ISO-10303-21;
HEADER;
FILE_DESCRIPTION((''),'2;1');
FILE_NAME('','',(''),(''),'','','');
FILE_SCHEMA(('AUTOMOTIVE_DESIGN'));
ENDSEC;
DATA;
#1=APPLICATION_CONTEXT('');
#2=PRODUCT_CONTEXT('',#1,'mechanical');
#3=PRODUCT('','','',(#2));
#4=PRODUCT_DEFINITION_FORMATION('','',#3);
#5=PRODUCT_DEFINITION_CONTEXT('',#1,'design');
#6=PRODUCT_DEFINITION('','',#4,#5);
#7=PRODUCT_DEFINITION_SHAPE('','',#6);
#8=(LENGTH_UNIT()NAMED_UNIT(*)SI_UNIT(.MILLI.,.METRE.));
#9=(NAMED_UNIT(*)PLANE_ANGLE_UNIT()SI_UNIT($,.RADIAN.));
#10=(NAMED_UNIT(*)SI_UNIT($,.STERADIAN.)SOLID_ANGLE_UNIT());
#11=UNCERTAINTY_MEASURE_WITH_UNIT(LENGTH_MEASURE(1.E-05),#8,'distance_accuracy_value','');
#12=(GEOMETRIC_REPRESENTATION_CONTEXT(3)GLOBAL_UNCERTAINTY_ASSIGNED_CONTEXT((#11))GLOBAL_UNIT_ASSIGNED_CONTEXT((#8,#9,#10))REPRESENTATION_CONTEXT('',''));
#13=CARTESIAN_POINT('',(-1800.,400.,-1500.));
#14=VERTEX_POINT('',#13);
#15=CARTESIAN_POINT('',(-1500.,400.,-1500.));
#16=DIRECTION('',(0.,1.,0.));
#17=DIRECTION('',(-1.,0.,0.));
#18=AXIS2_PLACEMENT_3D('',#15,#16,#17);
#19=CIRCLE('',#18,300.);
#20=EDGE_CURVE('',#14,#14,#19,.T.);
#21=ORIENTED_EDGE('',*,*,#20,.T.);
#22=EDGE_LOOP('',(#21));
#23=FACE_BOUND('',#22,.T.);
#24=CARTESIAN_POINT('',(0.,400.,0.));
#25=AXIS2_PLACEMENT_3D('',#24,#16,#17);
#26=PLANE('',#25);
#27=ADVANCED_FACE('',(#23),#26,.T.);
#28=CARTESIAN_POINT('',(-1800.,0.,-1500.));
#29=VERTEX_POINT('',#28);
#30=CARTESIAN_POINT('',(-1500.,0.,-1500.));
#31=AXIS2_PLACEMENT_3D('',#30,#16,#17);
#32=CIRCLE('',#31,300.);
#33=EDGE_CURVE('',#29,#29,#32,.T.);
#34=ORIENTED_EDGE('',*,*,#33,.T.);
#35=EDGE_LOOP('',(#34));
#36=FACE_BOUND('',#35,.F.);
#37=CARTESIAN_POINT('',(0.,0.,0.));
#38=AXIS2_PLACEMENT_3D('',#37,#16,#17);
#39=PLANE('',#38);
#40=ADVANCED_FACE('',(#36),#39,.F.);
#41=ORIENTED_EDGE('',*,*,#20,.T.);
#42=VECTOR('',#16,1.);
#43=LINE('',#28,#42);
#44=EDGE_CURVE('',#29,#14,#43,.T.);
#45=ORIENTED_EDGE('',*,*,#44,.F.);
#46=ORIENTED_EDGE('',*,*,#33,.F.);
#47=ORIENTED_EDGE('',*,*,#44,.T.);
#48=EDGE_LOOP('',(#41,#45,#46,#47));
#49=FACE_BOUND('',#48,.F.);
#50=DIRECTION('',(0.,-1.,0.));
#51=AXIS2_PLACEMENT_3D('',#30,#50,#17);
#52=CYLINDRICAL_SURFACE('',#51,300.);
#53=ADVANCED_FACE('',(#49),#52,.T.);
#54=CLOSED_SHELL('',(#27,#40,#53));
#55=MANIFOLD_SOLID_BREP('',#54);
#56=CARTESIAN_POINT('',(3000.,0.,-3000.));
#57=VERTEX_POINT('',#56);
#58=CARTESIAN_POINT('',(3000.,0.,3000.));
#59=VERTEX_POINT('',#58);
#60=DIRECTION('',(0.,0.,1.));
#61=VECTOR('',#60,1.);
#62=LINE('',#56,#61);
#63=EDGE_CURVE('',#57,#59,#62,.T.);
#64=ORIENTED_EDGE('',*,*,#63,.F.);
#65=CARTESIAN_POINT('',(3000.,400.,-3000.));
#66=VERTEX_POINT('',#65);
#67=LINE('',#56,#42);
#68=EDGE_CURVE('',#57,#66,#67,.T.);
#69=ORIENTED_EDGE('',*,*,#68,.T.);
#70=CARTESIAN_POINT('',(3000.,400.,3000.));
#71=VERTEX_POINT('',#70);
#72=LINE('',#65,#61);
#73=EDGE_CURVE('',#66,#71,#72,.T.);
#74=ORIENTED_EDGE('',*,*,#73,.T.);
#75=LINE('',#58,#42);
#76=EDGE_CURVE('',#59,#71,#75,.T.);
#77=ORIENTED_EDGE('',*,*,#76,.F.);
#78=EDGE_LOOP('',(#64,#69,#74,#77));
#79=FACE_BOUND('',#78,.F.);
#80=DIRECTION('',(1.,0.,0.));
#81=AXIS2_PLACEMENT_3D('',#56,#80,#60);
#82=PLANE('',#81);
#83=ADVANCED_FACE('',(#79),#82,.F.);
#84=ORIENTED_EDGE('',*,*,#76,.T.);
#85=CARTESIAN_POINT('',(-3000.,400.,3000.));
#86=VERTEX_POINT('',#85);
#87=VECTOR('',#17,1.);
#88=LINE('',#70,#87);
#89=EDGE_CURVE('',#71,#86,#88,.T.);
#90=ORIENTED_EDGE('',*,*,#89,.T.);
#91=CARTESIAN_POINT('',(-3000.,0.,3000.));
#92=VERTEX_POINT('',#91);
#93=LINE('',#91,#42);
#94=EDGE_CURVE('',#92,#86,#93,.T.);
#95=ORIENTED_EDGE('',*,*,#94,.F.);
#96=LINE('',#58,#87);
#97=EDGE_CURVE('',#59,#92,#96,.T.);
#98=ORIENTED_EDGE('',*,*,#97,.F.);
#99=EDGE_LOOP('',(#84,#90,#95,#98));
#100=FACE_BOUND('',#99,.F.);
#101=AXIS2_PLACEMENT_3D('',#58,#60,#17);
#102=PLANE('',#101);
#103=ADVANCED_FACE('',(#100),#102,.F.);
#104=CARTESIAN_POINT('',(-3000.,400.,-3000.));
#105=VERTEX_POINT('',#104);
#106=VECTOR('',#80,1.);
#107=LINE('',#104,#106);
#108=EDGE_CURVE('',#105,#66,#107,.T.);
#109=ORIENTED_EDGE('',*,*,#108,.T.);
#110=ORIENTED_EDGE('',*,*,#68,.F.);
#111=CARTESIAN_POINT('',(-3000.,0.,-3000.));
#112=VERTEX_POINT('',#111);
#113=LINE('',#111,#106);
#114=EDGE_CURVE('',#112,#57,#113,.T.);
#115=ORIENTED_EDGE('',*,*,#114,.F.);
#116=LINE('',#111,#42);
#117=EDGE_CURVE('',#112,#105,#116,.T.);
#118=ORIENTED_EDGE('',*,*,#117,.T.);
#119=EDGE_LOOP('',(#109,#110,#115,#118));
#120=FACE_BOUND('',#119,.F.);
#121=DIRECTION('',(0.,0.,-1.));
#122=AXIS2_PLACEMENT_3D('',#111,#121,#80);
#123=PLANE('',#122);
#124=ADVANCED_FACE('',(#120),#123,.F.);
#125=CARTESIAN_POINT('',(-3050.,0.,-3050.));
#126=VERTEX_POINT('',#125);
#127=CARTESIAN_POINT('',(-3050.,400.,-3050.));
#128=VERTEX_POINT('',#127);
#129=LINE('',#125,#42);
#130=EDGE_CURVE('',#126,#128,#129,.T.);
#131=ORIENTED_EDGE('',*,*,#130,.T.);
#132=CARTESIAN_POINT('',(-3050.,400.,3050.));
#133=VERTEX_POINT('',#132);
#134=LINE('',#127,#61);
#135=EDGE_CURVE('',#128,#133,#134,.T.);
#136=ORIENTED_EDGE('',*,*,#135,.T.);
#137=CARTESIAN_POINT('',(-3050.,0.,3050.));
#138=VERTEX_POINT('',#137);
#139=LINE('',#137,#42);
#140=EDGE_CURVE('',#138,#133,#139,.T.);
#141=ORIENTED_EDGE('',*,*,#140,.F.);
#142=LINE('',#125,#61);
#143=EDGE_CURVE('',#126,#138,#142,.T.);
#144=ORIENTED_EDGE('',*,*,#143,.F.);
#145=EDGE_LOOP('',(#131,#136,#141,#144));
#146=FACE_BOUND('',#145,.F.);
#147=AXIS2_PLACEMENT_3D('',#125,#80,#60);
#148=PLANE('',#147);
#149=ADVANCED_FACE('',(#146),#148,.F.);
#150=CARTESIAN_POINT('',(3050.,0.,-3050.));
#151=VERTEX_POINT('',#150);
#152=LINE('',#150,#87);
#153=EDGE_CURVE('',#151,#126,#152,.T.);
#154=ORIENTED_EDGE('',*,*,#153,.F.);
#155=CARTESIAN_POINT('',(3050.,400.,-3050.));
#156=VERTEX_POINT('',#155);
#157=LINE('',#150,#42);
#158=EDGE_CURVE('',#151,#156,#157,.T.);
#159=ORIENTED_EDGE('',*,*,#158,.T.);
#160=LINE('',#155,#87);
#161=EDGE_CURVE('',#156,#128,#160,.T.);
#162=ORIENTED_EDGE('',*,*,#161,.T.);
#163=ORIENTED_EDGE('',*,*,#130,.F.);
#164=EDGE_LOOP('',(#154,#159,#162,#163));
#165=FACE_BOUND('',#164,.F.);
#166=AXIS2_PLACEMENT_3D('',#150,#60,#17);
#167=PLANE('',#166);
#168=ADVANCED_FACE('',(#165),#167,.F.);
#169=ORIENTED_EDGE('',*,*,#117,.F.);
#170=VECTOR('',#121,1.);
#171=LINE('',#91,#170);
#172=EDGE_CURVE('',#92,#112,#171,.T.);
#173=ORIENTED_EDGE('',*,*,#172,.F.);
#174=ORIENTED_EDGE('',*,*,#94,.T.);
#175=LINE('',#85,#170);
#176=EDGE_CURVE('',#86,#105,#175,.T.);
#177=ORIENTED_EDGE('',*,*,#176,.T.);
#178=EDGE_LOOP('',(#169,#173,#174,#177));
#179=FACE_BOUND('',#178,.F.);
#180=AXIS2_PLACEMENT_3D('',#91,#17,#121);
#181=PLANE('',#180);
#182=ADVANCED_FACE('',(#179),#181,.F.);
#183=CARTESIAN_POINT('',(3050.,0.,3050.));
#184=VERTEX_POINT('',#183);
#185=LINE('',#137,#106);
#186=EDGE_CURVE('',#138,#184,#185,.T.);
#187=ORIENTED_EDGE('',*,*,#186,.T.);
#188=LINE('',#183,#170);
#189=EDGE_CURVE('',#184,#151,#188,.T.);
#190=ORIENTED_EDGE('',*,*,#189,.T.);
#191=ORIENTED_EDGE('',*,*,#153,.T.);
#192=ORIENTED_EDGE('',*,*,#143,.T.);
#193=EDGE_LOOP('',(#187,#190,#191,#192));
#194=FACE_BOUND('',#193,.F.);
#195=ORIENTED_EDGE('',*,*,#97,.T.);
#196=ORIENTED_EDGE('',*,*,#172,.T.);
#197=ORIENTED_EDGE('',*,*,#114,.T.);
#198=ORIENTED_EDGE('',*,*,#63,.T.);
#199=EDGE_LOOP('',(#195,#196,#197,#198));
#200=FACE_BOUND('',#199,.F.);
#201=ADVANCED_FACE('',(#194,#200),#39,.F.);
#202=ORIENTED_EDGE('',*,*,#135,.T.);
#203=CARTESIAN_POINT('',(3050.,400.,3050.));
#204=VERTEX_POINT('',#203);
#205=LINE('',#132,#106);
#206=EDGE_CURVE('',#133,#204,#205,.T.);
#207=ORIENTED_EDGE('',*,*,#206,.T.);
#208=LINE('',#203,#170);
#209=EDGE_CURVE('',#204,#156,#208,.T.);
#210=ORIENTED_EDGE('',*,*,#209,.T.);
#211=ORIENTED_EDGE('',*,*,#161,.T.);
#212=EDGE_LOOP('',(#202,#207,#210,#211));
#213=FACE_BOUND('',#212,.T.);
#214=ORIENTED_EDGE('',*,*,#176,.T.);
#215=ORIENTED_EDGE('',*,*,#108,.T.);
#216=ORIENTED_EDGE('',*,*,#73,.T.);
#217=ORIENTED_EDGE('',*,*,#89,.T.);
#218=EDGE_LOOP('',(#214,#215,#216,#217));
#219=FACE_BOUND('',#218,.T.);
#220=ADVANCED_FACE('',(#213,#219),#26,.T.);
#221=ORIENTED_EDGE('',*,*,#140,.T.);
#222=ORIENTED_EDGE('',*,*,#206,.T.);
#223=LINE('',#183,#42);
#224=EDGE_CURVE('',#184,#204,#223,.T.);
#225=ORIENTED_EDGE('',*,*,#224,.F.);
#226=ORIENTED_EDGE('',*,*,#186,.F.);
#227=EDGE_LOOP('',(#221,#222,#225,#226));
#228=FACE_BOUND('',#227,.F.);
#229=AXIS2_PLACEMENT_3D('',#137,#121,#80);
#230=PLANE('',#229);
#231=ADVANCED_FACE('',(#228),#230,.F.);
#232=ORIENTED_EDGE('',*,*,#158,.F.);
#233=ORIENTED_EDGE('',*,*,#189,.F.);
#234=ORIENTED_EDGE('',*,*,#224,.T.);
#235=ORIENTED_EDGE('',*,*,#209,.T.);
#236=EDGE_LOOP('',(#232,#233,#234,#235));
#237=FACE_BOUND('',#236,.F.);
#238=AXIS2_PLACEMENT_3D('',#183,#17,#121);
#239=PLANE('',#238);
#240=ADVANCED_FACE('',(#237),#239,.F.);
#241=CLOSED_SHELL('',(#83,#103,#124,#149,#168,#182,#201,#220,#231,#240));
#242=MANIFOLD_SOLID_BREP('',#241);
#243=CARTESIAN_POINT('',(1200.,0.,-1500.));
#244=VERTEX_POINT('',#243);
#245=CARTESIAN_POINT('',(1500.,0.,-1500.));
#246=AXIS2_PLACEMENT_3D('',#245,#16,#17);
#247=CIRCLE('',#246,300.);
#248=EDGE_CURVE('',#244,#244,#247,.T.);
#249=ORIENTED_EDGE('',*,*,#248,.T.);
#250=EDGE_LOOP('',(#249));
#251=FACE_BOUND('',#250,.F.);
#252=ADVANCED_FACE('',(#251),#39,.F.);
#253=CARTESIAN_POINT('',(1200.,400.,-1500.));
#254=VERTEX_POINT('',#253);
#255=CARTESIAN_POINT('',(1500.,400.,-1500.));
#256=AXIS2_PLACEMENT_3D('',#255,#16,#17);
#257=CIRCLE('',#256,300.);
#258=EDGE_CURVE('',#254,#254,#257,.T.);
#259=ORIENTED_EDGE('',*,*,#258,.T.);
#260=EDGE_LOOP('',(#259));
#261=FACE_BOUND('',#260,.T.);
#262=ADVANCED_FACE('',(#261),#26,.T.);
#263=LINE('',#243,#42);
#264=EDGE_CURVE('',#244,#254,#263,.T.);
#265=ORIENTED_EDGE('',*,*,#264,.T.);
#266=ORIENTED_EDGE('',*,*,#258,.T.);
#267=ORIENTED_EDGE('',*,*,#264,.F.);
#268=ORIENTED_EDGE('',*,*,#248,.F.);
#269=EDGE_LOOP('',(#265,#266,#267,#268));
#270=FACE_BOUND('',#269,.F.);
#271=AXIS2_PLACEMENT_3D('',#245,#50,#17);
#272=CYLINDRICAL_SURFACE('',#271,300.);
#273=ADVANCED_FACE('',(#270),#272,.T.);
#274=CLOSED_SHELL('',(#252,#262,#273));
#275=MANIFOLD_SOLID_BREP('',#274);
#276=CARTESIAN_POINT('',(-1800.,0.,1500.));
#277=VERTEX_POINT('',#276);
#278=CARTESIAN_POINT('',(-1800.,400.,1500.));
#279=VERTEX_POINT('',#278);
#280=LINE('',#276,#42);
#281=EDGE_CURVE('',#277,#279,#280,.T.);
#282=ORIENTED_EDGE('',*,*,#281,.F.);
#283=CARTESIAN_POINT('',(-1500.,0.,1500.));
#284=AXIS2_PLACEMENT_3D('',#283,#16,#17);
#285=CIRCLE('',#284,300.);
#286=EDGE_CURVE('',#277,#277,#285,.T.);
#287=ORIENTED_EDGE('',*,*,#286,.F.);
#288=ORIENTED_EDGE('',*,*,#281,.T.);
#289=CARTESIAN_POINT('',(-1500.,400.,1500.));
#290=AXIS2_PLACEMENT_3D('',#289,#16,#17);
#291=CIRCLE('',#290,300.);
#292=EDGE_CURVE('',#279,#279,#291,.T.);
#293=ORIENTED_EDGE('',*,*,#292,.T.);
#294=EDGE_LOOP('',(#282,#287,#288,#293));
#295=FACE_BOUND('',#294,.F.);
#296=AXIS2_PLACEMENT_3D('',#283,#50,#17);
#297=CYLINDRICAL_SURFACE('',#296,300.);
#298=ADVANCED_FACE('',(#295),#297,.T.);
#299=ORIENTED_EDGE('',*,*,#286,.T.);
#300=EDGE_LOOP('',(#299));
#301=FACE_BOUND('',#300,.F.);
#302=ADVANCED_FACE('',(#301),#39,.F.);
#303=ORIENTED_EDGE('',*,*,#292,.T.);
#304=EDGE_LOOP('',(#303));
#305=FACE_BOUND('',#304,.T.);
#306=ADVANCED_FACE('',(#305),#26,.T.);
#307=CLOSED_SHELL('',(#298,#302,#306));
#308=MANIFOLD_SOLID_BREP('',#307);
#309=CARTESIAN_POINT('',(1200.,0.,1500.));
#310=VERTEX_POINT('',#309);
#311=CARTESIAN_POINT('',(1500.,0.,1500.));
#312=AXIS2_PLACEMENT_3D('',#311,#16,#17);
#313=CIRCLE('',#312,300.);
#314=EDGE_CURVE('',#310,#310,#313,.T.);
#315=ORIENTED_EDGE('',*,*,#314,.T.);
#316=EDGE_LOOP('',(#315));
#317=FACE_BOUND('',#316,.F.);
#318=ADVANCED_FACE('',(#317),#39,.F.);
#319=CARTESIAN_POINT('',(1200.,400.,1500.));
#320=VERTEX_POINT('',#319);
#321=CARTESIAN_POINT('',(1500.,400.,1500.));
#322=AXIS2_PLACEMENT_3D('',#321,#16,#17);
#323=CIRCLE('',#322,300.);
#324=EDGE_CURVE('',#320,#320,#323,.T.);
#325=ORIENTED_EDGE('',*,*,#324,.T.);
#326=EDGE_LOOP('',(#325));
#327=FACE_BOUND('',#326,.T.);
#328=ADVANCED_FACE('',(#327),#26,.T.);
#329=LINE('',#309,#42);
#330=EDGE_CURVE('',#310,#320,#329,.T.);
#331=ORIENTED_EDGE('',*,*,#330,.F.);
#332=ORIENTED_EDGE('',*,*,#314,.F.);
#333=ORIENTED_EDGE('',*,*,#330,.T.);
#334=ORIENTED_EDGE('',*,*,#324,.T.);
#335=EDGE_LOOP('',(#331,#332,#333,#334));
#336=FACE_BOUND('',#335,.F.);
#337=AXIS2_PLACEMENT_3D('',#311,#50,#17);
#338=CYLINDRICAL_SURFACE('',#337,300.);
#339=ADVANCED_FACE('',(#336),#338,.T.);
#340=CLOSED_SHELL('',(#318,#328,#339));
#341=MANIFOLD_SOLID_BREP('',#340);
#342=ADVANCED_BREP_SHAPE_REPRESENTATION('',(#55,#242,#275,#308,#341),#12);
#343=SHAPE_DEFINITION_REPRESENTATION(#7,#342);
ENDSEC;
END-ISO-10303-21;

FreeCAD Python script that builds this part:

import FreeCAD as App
import Part
import Sketcher

V = App.Vector
Q = App.Units.Quantity


def add_polygon(sketch, points):
    """Adds a closed chain of lines whose ends are joined by coincident constraints."""
    first, n = sketch.GeometryCount, len(points)
    for a, b in zip(points, points[1:] + points[:1]):
        sketch.addGeometry(Part.LineSegment(App.Vector(*a, 0), App.Vector(*b, 0)), False)
    for i in range(n):
        sketch.addConstraint(Sketcher.Constraint("Coincident", first + i, 2, first + (i + 1) % n, 1))

doc = App.newDocument("Part")
params = doc.addObject("Spreadsheet::Sheet", "Params")
for row, (alias, value) in enumerate([
    ("sketch1_diameter", "600 mm"),
    ("sketch1_width", "6000 mm"),
    ("pad1_length", "400 mm"),
], start=1):
    params.set(f"A{row}", alias)
    params.set(f"B{row}", "=" + value)
    params.setAlias(f"B{row}", alias)

body = doc.addObject("PartDesign::Body", "Body")
body.AllowCompound = True

sketch1 = doc.addObject("Sketcher::SketchObject", "Sketch")
body.addObject(sketch1)
sketch1.AttachmentSupport = (doc.XZ_Plane, [""])
sketch1.MapMode = "FlatFace"
add_polygon(sketch1, [(3050, 3050), (3050, -3050), (-3050, -3050), (-3050, 3050)])
add_polygon(sketch1, [(-3000, 3000), (-3000, -3000), (3000, -3000), (3000, 3000)])
sketch1.addGeometry(Part.Circle(V(-1500, -1500, 0), V(0, 0, 1), 300), False)
sketch1.addGeometry(Part.Circle(V(1500, -1500, 0), V(0, 0, 1), 300), False)
sketch1.addGeometry(Part.Circle(V(1500, 1500, 0), V(0, 0, 1), 300), False)
sketch1.addGeometry(Part.Circle(V(-1500, 1500, 0), V(0, 0, 1), 300), False)
sketch1.addConstraint(Sketcher.Constraint("Vertical", 0))
sketch1.addConstraint(Sketcher.Constraint("Horizontal", 1))
sketch1.addConstraint(Sketcher.Constraint("Vertical", 2))
sketch1.addConstraint(Sketcher.Constraint("Horizontal", 3))
sketch1.addConstraint(Sketcher.Constraint("Vertical", 4))
sketch1.addConstraint(Sketcher.Constraint("Horizontal", 5))
sketch1.addConstraint(Sketcher.Constraint("Vertical", 6))
sketch1.addConstraint(Sketcher.Constraint("Horizontal", 7))
sketch1.addConstraint(Sketcher.Constraint("Equal", 8, 9))
sketch1.addConstraint(Sketcher.Constraint("Equal", 9, 10))
sketch1.addConstraint(Sketcher.Constraint("Equal", 10, 11))
sketch1.addConstraint(Sketcher.Constraint("Symmetric", 8, 3, 10, 3, -1, 1))
sketch1.addConstraint(Sketcher.Constraint("Symmetric", 9, 3, 11, 3, -1, 1))
sketch1.addConstraint(Sketcher.Constraint("Symmetric", 0, 2, 2, 2, -1, 1))
sketch1.addConstraint(Sketcher.Constraint("Symmetric", 4, 2, 6, 2, -1, 1))
sketch1.addConstraint(Sketcher.Constraint("Symmetric", 8, 3, 9, 3, -2))
sketch1.addConstraint(Sketcher.Constraint("Equal", 3, 0))
sketch1.addConstraint(Sketcher.Constraint("Equal", 7, 4))
sketch1.addConstraint(Sketcher.Constraint("Diameter", 8, Q("600 mm")))
sketch1.addConstraint(Sketcher.Constraint("DistanceX", 5, 1, 5, 2, Q("6000 mm")))
sketch1.addConstraint(Sketcher.Constraint("DistanceX", 8, 3, 9, 3, Q("3000 mm")))
sketch1.addConstraint(Sketcher.Constraint("DistanceY", 9, 3, 10, 3, Q("3000 mm")))
sketch1.addConstraint(Sketcher.Constraint("DistanceX", 1, 2, 4, 2, Q("50 mm")))
sketch1.setExpression("Constraints[26]", "Params.sketch1_diameter")
sketch1.setExpression("Constraints[27]", "Params.sketch1_width")
pad1 = doc.addObject("PartDesign::Pad", "Pad")
body.addObject(pad1)
pad1.Profile = sketch1
pad1.setExpression("Length", "Params.pad1_length")
pad1.Reversed = True

doc.recompute()
